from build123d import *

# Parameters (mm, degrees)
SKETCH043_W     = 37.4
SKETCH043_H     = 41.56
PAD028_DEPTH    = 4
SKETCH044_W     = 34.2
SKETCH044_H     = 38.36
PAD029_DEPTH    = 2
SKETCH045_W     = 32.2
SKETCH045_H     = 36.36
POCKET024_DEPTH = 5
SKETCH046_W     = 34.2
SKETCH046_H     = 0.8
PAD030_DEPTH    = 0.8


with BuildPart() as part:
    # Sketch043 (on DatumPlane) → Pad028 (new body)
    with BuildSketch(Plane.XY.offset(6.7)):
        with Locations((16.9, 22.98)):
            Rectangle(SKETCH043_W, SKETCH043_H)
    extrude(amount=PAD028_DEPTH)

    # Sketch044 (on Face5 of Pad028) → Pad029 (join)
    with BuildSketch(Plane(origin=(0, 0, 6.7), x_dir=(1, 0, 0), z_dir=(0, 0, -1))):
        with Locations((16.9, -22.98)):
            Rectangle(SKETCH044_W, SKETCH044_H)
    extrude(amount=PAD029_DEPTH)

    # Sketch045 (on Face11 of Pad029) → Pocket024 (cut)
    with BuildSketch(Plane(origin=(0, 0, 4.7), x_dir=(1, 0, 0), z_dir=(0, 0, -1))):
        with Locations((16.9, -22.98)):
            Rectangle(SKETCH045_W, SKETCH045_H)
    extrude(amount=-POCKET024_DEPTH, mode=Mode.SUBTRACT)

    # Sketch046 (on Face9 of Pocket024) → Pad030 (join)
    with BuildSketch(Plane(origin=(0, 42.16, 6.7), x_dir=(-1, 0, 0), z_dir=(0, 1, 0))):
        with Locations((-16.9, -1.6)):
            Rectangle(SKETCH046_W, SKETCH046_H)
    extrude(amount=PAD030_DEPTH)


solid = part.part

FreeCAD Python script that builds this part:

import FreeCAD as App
import Part
import Sketcher

V = App.Vector

doc = App.newDocument("Part")
body = doc.addObject("PartDesign::Body", "Body")

# Sketch on XY plane
sketch1 = body.newObject("Sketcher::SketchObject", "Sketch")
sketch1.AttachmentSupport = (doc.getObject("XY_Plane"), [""])
sketch1.MapMode = "FlatFace"
sketch1.AttachmentOffset = App.Placement(V(0, 0, 6.7), App.Rotation())
sketch1.addGeometry([
    Part.LineSegment(V(-2, 44, 0), V(-2, 2, 0)),
    Part.LineSegment(V(-2, 2, 0), V(36, 2, 0)),
    Part.LineSegment(V(36, 2, 0), V(36, 44, 0)),
    Part.LineSegment(V(36, 44, 0), V(-2, 44, 0)),
], False)
sketch1.addConstraint([
    Sketcher.Constraint("Coincident", 0, 2, 1, 1),
    Sketcher.Constraint("Coincident", 1, 2, 2, 1),
    Sketcher.Constraint("Coincident", 2, 2, 3, 1),
    Sketcher.Constraint("Coincident", 3, 2, 0, 1),
    Sketcher.Constraint("Vertical", 0),
    Sketcher.Constraint("Horizontal", 1),
    Sketcher.Constraint("Vertical", 2),
    Sketcher.Constraint("Horizontal", 3),
    Sketcher.Constraint("DistanceX", 1, 1, 1, 2, 37.4),
    Sketcher.Constraint("DistanceY", 0, 2, 0, 1, 41.56),
    Sketcher.Constraint("DistanceX", 0, 2, -1, 1, 1.8),
    Sketcher.Constraint("DistanceY", -1, 1, 0, 2, 2.2),
])
pad1 = body.newObject("PartDesign::Pad", "Pad")
pad1.Profile = sketch1
pad1.Length = 4

# Sketch on XY plane
sketch2 = body.newObject("Sketcher::SketchObject", "Sketch001")
sketch2.AttachmentSupport = (doc.getObject("XY_Plane"), [""])
sketch2.MapMode = "FlatFace"
sketch2.AttachmentOffset = App.Placement(V(0, 0, 6.7), App.Rotation())
sketch2.addGeometry([
    Part.LineSegment(V(0, 4, 0), V(0, 42, 0)),
    Part.LineSegment(V(0, 42, 0), V(34, 42, 0)),
    Part.LineSegment(V(34, 42, 0), V(34, 4, 0)),
    Part.LineSegment(V(34, 4, 0), V(0, 4, 0)),
], False)
sketch2.addConstraint([
    Sketcher.Constraint("Coincident", 0, 2, 1, 1),
    Sketcher.Constraint("Coincident", 1, 2, 2, 1),
    Sketcher.Constraint("Coincident", 2, 2, 3, 1),
    Sketcher.Constraint("Coincident", 3, 2, 0, 1),
    Sketcher.Constraint("Vertical", 0),
    Sketcher.Constraint("Horizontal", 1),
    Sketcher.Constraint("Vertical", 2),
    Sketcher.Constraint("Horizontal", 3),
    Sketcher.Constraint("DistanceX", 1, 1, 1, 2, 34.2),
    Sketcher.Constraint("DistanceX", -1, 1, 1, 2, 34.0),
    Sketcher.Constraint("DistanceY", 0, 1, 0, 2, 38.36),
    Sketcher.Constraint("DistanceY", -1, 1, 2, 2, 3.8),
])
pad2 = body.newObject("PartDesign::Pad", "Pad001")
pad2.Profile = sketch2
pad2.Length = 2
pad2.Reversed = True

# Sketch on XY plane
sketch3 = body.newObject("Sketcher::SketchObject", "Sketch002")
sketch3.AttachmentSupport = (doc.getObject("XY_Plane"), [""])
sketch3.MapMode = "FlatFace"
sketch3.AttachmentOffset = App.Placement(V(0, 0, 4.7), App.Rotation())
sketch3.addGeometry([
    Part.LineSegment(V(1, 5, 0), V(1, 41, 0)),
    Part.LineSegment(V(1, 41, 0), V(33, 41, 0)),
    Part.LineSegment(V(33, 41, 0), V(33, 5, 0)),
    Part.LineSegment(V(33, 5, 0), V(1, 5, 0)),
], False)
sketch3.addConstraint([
    Sketcher.Constraint("Coincident", 0, 2, 1, 1),
    Sketcher.Constraint("Coincident", 1, 2, 2, 1),
    Sketcher.Constraint("Coincident", 2, 2, 3, 1),
    Sketcher.Constraint("Coincident", 3, 2, 0, 1),
    Sketcher.Constraint("Vertical", 0),
    Sketcher.Constraint("Horizontal", 1),
    Sketcher.Constraint("Vertical", 2),
    Sketcher.Constraint("Horizontal", 3),
    Sketcher.Constraint("DistanceX", 1, 1, 1, 2, 32.2),
    Sketcher.Constraint("DistanceX", -1, 1, 1, 2, 33.0),
    Sketcher.Constraint("DistanceY", 0, 1, 0, 2, 36.36),
    Sketcher.Constraint("DistanceY", -1, 1, 2, 2, 4.8),
])
pocket1 = body.newObject("PartDesign::Pocket", "Pocket")
pocket1.Profile = sketch3
pocket1.Length = 5
pocket1.Reversed = True

# Sketch on XZ plane
sketch4 = body.newObject("Sketcher::SketchObject", "Sketch003")
sketch4.AttachmentSupport = (doc.getObject("XZ_Plane"), [""])
sketch4.MapMode = "FlatFace"
sketch4.AttachmentOffset = App.Placement(V(0, 0, -42.16), App.Rotation())
sketch4.addGeometry([
    Part.LineSegment(V(34, 5.5, 0), V(34, 4.7, 0)),
    Part.LineSegment(V(34, 4.7, 0), V(-0.2, 4.7, 0)),
    Part.LineSegment(V(-0.2, 4.7, 0), V(-0.2, 5.5, 0)),
    Part.LineSegment(V(-0.2, 5.5, 0), V(34, 5.5, 0)),
], False)
sketch4.addConstraint([
    Sketcher.Constraint("Coincident", 0, 2, 1, 1),
    Sketcher.Constraint("Coincident", 1, 2, 2, 1),
    Sketcher.Constraint("Coincident", 2, 2, 3, 1),
    Sketcher.Constraint("Coincident", 3, 2, 0, 1),
    Sketcher.Constraint("Vertical", 0),
    Sketcher.Constraint("Horizontal", 1),
    Sketcher.Constraint("Vertical", 2),
    Sketcher.Constraint("Horizontal", 3),
    Sketcher.Constraint("DistanceX", 1, 2, 1, 1, 34.2),
    Sketcher.Constraint("DistanceY", 0, 2, 0, 1, 0.8),
    Sketcher.Constraint("DistanceX", -1, 1, 0, 2, 34.0),
    Sketcher.Constraint("DistanceY", -1, 1, 0, 2, 4.7),
])
pad3 = body.newObject("PartDesign::Pad", "Pad002")
pad3.Profile = sketch4
pad3.Length = 0.8
pad3.Reversed = True

doc.recompute()
